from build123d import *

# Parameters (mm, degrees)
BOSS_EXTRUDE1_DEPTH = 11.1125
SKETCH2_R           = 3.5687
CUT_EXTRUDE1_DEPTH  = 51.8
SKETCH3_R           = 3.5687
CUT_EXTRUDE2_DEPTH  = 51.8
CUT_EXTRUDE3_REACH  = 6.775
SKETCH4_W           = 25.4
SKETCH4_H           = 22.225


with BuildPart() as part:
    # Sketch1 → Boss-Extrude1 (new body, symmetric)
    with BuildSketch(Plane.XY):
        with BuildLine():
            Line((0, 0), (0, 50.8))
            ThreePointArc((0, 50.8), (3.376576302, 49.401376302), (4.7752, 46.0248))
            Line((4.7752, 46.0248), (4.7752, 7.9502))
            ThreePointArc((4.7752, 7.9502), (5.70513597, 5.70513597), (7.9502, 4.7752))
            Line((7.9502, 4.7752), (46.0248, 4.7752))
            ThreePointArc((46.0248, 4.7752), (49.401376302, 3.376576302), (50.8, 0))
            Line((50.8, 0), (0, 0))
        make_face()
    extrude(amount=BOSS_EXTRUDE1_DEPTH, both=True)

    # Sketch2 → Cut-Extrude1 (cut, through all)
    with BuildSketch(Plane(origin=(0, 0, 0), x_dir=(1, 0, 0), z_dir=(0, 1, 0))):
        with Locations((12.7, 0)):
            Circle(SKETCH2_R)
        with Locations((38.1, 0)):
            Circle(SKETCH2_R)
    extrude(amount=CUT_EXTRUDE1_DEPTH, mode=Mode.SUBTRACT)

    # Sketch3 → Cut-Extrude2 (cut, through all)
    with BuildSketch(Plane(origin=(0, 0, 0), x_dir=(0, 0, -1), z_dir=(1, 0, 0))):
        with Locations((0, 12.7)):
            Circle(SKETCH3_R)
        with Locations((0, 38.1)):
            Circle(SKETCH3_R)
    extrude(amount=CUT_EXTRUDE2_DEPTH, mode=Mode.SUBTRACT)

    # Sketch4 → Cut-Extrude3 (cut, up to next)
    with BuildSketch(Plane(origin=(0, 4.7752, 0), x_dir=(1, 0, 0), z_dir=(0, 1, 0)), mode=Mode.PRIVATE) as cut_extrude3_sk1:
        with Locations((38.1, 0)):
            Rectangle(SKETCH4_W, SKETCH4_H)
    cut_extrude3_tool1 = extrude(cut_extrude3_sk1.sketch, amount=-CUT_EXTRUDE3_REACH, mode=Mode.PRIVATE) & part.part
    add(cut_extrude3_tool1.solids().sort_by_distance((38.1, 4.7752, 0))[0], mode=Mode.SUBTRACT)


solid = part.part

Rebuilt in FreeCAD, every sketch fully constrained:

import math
import FreeCAD as App
import Part
import Sketcher
Q = App.Units.Quantity

doc = App.newDocument("Part")
body = doc.addObject("PartDesign::Body", "Body")

sketch1 = body.newObject("Sketcher::SketchObject", "Sketch")
sketch1.AttachmentSupport = (doc.getObject("XY_Plane"), [""])
sketch1.MapMode = "FlatFace"
sketch1.addGeometry(Part.LineSegment(App.Vector(0, 50.8, 0), App.Vector(0, 0, 0)), False)
sketch1.addGeometry(Part.LineSegment(App.Vector(0, 0, 0), App.Vector(50.8, 0, 0)), False)
sketch1.addGeometry(Part.ArcOfCircle(Part.Circle(App.Vector(46.0248, 0, 0), App.Vector(0, 0, 1), 4.7752), math.radians(0), math.radians(90)), False)
sketch1.addGeometry(Part.LineSegment(App.Vector(46.0248, 4.7752, 0), App.Vector(7.9502, 4.7752, 0)), False)
sketch1.addGeometry(Part.ArcOfCircle(Part.Circle(App.Vector(7.9502, 7.9502, 0), App.Vector(0, 0, 1), 3.175), math.radians(-180), math.radians(-90)), False)
sketch1.addGeometry(Part.LineSegment(App.Vector(4.7752, 7.9502, 0), App.Vector(4.7752, 46.0248, 0)), False)
sketch1.addGeometry(Part.ArcOfCircle(Part.Circle(App.Vector(0, 46.0248, 0), App.Vector(0, 0, 1), 4.7752), math.radians(0), math.radians(90)), False)
sketch1.addConstraint(Sketcher.Constraint("Coincident", 0, 2, 1, 1))
sketch1.addConstraint(Sketcher.Constraint("Coincident", 1, 2, 2, 1))
sketch1.addConstraint(Sketcher.Constraint("Tangent", 2, 2, 3, 1))
sketch1.addConstraint(Sketcher.Constraint("Tangent", 3, 2, 4, 2))
sketch1.addConstraint(Sketcher.Constraint("Tangent", 4, 1, 5, 1))
sketch1.addConstraint(Sketcher.Constraint("Tangent", 5, 2, 6, 1))
sketch1.addConstraint(Sketcher.Constraint("Coincident", 6, 2, 0, 1))
sketch1.addConstraint(Sketcher.Constraint("Vertical", 0))
sketch1.addConstraint(Sketcher.Constraint("Horizontal", 1))
sketch1.addConstraint(Sketcher.Constraint("Horizontal", 3))
sketch1.addConstraint(Sketcher.Constraint("Vertical", 5))
sketch1.addConstraint(Sketcher.Constraint("Coincident", 0, 2, -1, 1))
sketch1.addConstraint(Sketcher.Constraint("Equal", 2, 6))
sketch1.addConstraint(Sketcher.Constraint("PointOnObject", 2, 3, -1))
sketch1.addConstraint(Sketcher.Constraint("PointOnObject", 6, 3, -2))
sketch1.addConstraint(Sketcher.Constraint("Equal", 1, 0))
sketch1.addConstraint(Sketcher.Constraint("DistanceX", 1, 1, 1, 2, Q("2 in")))
sketch1.addConstraint(Sketcher.Constraint("Radius", 2, Q("0.188 in")))
sketch1.addConstraint(Sketcher.Constraint("Radius", 4, Q("0.125 in")))
pad1 = body.newObject("PartDesign::Pad", "Pad")
pad1.Profile = sketch1
pad1.Length = Q("0.875 in")
pad1.Midplane = True

sketch2 = body.newObject("Sketcher::SketchObject", "Sketch001")
sketch2.AttachmentSupport = (doc.getObject("XZ_Plane"), [""])
sketch2.MapMode = "FlatFace"
sketch2.addGeometry(Part.Circle(App.Vector(12.7, 0, 0), App.Vector(0, 0, 1), 3.5687), False)
sketch2.addGeometry(Part.Circle(App.Vector(38.1, 0, 0), App.Vector(0, 0, 1), 3.5687), False)
sketch2.addConstraint(Sketcher.Constraint("Equal", 0, 1))
sketch2.addConstraint(Sketcher.Constraint("PointOnObject", 0, 3, -1))
sketch2.addConstraint(Sketcher.Constraint("PointOnObject", 1, 3, -1))
sketch2.addConstraint(Sketcher.Constraint("Diameter", 0, Q("0.281 in")))
sketch2.addConstraint(Sketcher.Constraint("DistanceX", 0, 3, 1, 3, Q("1 in")))
sketch2.addConstraint(Sketcher.Constraint("DistanceX", -1, 1, 0, 3, Q("0.5 in")))
pocket1 = body.newObject("PartDesign::Pocket", "Pocket")
pocket1.Profile = sketch2
pocket1.Type = "ThroughAll"

sketch3 = body.newObject("Sketcher::SketchObject", "Sketch002")
sketch3.AttachmentSupport = (doc.getObject("YZ_Plane"), [""])
sketch3.MapMode = "FlatFace"
sketch3.addGeometry(Part.Circle(App.Vector(12.7, 0, 0), App.Vector(0, 0, 1), 3.5687), False)
sketch3.addGeometry(Part.Circle(App.Vector(38.1, 0, 0), App.Vector(0, 0, 1), 3.5687), False)
sketch3.addConstraint(Sketcher.Constraint("Equal", 0, 1))
sketch3.addConstraint(Sketcher.Constraint("PointOnObject", 0, 3, -1))
sketch3.addConstraint(Sketcher.Constraint("PointOnObject", 1, 3, -1))
sketch3.addConstraint(Sketcher.Constraint("Diameter", 0, Q("0.281 in")))
sketch3.addConstraint(Sketcher.Constraint("DistanceX", 0, 3, 1, 3, Q("1 in")))
sketch3.addConstraint(Sketcher.Constraint("DistanceX", -1, 1, 0, 3, Q("0.5 in")))
pocket2 = body.newObject("PartDesign::Pocket", "Pocket001")
pocket2.Profile = sketch3
pocket2.Type = "ThroughAll"
pocket2.Reversed = True

sketch4 = body.newObject("Sketcher::SketchObject", "Sketch003")
sketch4.AttachmentSupport = (doc.getObject("XZ_Plane"), [""])
sketch4.MapMode = "FlatFace"
sketch4.AttachmentOffset = App.Placement(App.Vector(0, 0, -0.188 * 25.4), App.Rotation())
sketch4.addGeometry(Part.LineSegment(App.Vector(25.4, -11.1125, 0), App.Vector(25.4, 11.1125, 0)), False)
sketch4.addGeometry(Part.LineSegment(App.Vector(25.4, 11.1125, 0), App.Vector(50.8, 11.1125, 0)), False)
sketch4.addGeometry(Part.LineSegment(App.Vector(50.8, 11.1125, 0), App.Vector(50.8, -11.1125, 0)), False)
sketch4.addGeometry(Part.LineSegment(App.Vector(50.8, -11.1125, 0), App.Vector(25.4, -11.1125, 0)), False)
sketch4.addConstraint(Sketcher.Constraint("Coincident", 0, 2, 1, 1))
sketch4.addConstraint(Sketcher.Constraint("Coincident", 1, 2, 2, 1))
sketch4.addConstraint(Sketcher.Constraint("Coincident", 2, 2, 3, 1))
sketch4.addConstraint(Sketcher.Constraint("Coincident", 3, 2, 0, 1))
sketch4.addConstraint(Sketcher.Constraint("Vertical", 0))
sketch4.addConstraint(Sketcher.Constraint("Horizontal", 1))
sketch4.addConstraint(Sketcher.Constraint("Vertical", 2))
sketch4.addConstraint(Sketcher.Constraint("Horizontal", 3))
sketch4.addConstraint(Sketcher.Constraint("DistanceX", 1, 1, 1, 2, Q("1 in")))
sketch4.addConstraint(Sketcher.Constraint("DistanceX", -1, 1, 0, 2, Q("1 in")))
sketch4.addConstraint(Sketcher.Constraint("DistanceY", 0, 1, 0, 2, Q("0.875 in")))
sketch4.addConstraint(Sketcher.Constraint("DistanceY", -1, 1, 0, 2, Q("0.4375 in")))
pocket3 = body.newObject("PartDesign::Pocket", "Pocket002")
pocket3.Profile = sketch4
pocket3.Length = Q("0.188 in")
pocket3.Reversed = True

doc.recompute()
